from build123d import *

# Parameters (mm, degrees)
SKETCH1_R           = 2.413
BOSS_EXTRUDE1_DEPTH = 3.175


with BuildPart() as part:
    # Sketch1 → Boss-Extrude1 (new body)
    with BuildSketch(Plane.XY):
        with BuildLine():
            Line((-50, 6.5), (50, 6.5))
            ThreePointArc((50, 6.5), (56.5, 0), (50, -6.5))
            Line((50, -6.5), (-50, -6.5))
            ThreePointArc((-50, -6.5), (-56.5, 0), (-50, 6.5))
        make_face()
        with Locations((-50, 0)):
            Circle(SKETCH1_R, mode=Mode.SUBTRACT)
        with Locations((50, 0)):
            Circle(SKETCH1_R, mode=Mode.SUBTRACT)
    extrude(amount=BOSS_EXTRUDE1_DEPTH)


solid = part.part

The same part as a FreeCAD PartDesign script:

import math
import FreeCAD as App
import Part
import Sketcher

doc = App.newDocument("Part")
body = doc.addObject("PartDesign::Body", "Body")

# Sketch on XY plane
sketch1 = doc.addObject("Sketcher::SketchObject", "Sketch")
body.addObject(sketch1)
sketch1.AttachmentSupport = (doc.XY_Plane, [""])
sketch1.MapMode = "FlatFace"
sketch1.addGeometry(Part.LineSegment(App.Vector(50, 6.5, 0), App.Vector(-50, 6.5, 0)), False)
sketch1.addGeometry(Part.ArcOfCircle(Part.Circle(App.Vector(-50, 0, 0), App.Vector(0, 0, 1), 6.5), math.radians(90), math.radians(270)), False)
sketch1.addGeometry(Part.LineSegment(App.Vector(-50, -6.5, 0), App.Vector(50, -6.5, 0)), False)
sketch1.addGeometry(Part.ArcOfCircle(Part.Circle(App.Vector(50, 0, 0), App.Vector(0, 0, 1), 6.5), math.radians(-90), math.radians(90)), False)
sketch1.addGeometry(Part.Circle(App.Vector(50, 0, 0), App.Vector(0, 0, 1), 2.4), False)
sketch1.addGeometry(Part.Circle(App.Vector(-50, 0, 0), App.Vector(0, 0, 1), 2.4), False)
sketch1.addConstraint(Sketcher.Constraint("Tangent", 0, 2, 1, 1))
sketch1.addConstraint(Sketcher.Constraint("Tangent", 1, 2, 2, 1))
sketch1.addConstraint(Sketcher.Constraint("Tangent", 2, 2, 3, 1))
sketch1.addConstraint(Sketcher.Constraint("Tangent", 3, 2, 0, 1))
sketch1.addConstraint(Sketcher.Constraint("Horizontal", 0))
sketch1.addConstraint(Sketcher.Constraint("Horizontal", 2))
sketch1.addConstraint(Sketcher.Constraint("Coincident", 4, 3, 3, 3))
sketch1.addConstraint(Sketcher.Constraint("Coincident", 5, 3, 1, 3))
sketch1.addConstraint(Sketcher.Constraint("Equal", 4, 5))
sketch1.addConstraint(Sketcher.Constraint("Symmetric", 1, 3, 3, 3, -1, 1))
sketch1.addConstraint(Sketcher.Constraint("Radius", 1, 6.5))
sketch1.addConstraint(Sketcher.Constraint("DistanceX", 0, 2, 0, 1, 100.0))
sketch1.addConstraint(Sketcher.Constraint("Diameter", 4, 4.826))
pad1 = doc.addObject("PartDesign::Pad", "Pad")
body.addObject(pad1)
pad1.Profile = sketch1
pad1.Length = 3.175

doc.recompute()
